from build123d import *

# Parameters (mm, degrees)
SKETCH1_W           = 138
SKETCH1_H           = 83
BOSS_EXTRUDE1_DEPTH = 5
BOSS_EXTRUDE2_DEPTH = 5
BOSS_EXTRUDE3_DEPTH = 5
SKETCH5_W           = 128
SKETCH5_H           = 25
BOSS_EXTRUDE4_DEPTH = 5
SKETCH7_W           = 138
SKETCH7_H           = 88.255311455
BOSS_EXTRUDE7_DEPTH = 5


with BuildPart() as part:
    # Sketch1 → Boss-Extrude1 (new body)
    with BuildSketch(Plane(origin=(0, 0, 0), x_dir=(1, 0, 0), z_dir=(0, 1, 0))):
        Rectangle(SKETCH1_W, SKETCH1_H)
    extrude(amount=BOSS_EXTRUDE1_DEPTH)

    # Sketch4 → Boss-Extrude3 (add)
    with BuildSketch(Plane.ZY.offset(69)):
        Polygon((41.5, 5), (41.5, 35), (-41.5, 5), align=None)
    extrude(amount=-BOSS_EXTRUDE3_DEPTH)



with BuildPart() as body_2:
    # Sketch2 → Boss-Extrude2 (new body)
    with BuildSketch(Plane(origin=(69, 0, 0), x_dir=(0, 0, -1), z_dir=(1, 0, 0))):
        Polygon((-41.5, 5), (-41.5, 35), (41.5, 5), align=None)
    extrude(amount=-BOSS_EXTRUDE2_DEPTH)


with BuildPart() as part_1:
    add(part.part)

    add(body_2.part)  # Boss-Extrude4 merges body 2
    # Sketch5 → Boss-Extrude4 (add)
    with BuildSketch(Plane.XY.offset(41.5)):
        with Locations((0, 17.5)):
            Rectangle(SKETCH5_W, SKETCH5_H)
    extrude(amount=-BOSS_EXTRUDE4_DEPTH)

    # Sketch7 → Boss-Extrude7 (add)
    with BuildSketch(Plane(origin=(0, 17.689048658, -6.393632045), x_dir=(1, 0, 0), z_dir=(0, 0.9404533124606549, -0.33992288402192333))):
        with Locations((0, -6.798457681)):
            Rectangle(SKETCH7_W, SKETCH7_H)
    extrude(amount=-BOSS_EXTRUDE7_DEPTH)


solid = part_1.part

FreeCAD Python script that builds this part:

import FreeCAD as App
import Part
import Sketcher

V = App.Vector

doc = App.newDocument("Part")
params = doc.addObject("Spreadsheet::Sheet", "Params")
for row, (alias, value) in enumerate([
    ("sketch1_width", "138 mm"),
    ("sketch1_height", "83 mm"),
    ("pad1_length", "5 mm"),
    ("sketch2_width", "30 mm"),
    ("sketch2_height", "83 mm"),
    ("pad2_length", "5 mm"),
    ("sketch3_width", "30 mm"),
    ("sketch3_height", "83 mm"),
    ("pad3_length", "5 mm"),
    ("sketch4_width", "128 mm"),
    ("sketch4_height", "25 mm"),
    ("pad4_length", "5 mm"),
    ("sketch5_width", "138 mm"),
    ("pad5_length", "5 mm"),
], start=1):
    params.set(f"A{row}", alias)
    params.set(f"B{row}", "=" + value)
    params.setAlias(f"B{row}", alias)

body = doc.addObject("PartDesign::Body", "Body")

sketch1 = body.newObject("Sketcher::SketchObject", "Sketch")
sketch1.AttachmentSupport = (doc.getObject("XZ_Plane"), [""])
sketch1.MapMode = "FlatFace"
sketch1.addGeometry([
    Part.LineSegment(V(-69, -41.5, 0), V(-69, 41.5, 0)),
    Part.LineSegment(V(-69, 41.5, 0), V(69, 41.5, 0)),
    Part.LineSegment(V(69, 41.5, 0), V(69, -41.5, 0)),
    Part.LineSegment(V(69, -41.5, 0), V(-69, -41.5, 0)),
], False)
sketch1.addConstraint([
    Sketcher.Constraint("Coincident", 0, 2, 1, 1),
    Sketcher.Constraint("Coincident", 1, 2, 2, 1),
    Sketcher.Constraint("Coincident", 2, 2, 3, 1),
    Sketcher.Constraint("Coincident", 3, 2, 0, 1),
    Sketcher.Constraint("Vertical", 0),
    Sketcher.Constraint("Horizontal", 1),
    Sketcher.Constraint("Vertical", 2),
    Sketcher.Constraint("Horizontal", 3),
    Sketcher.Constraint("Symmetric", 0, 2, 2, 2, -1, 1),
    Sketcher.Constraint("DistanceX", 1, 1, 1, 2, 138.0),
    Sketcher.Constraint("DistanceY", 0, 1, 0, 2, 83.0),
])
sketch1.setExpression("Constraints[9]", "Params.sketch1_width")
sketch1.setExpression("Constraints[10]", "Params.sketch1_height")
pad1 = body.newObject("PartDesign::Pad", "Pad")
pad1.Profile = sketch1
pad1.setExpression("Length", "Params.pad1_length")
pad1.Reversed = True

sketch2 = body.newObject("Sketcher::SketchObject", "Sketch001")
sketch2.AttachmentSupport = (doc.getObject("YZ_Plane"), [""])
sketch2.MapMode = "FlatFace"
sketch2.AttachmentOffset = App.Placement(V(0, 0, -69), App.Rotation())
sketch2.addGeometry([
    Part.LineSegment(V(5, 41.5, 0), V(35, 41.5, 0)),
    Part.LineSegment(V(35, 41.5, 0), V(5, -41.5, 0)),
    Part.LineSegment(V(5, -41.5, 0), V(5, 41.5, 0)),
], False)
sketch2.addConstraint([
    Sketcher.Constraint("Coincident", 0, 2, 1, 1),
    Sketcher.Constraint("Coincident", 1, 2, 2, 1),
    Sketcher.Constraint("Coincident", 2, 2, 0, 1),
    Sketcher.Constraint("Horizontal", 0),
    Sketcher.Constraint("Vertical", 2),
    Sketcher.Constraint("DistanceX", 0, 1, 0, 2, 30.0),
    Sketcher.Constraint("DistanceY", 2, 1, 2, 2, 83.0),
    Sketcher.Constraint("DistanceX", -1, 1, 0, 2, 35.0),
    Sketcher.Constraint("DistanceY", -1, 1, 0, 2, 41.5),
])
sketch2.setExpression("Constraints[5]", "Params.sketch2_width")
sketch2.setExpression("Constraints[6]", "Params.sketch2_height")
pad2 = body.newObject("PartDesign::Pad", "Pad001")
pad2.Profile = sketch2
pad2.setExpression("Length", "Params.pad2_length")
body2 = doc.addObject("PartDesign::Body", "Body001")

sketch3 = body2.newObject("Sketcher::SketchObject", "Sketch002")
sketch3.AttachmentSupport = (doc.getObject("YZ_Plane001"), [""])
sketch3.MapMode = "FlatFace"
sketch3.AttachmentOffset = App.Placement(V(0, 0, 69), App.Rotation())
sketch3.addGeometry([
    Part.LineSegment(V(35, 41.5, 0), V(5, 41.5, 0)),
    Part.LineSegment(V(5, 41.5, 0), V(5, -41.5, 0)),
    Part.LineSegment(V(5, -41.5, 0), V(35, 41.5, 0)),
], False)
sketch3.addConstraint([
    Sketcher.Constraint("Coincident", 0, 2, 1, 1),
    Sketcher.Constraint("Coincident", 1, 2, 2, 1),
    Sketcher.Constraint("Coincident", 2, 2, 0, 1),
    Sketcher.Constraint("Horizontal", 0),
    Sketcher.Constraint("Vertical", 1),
    Sketcher.Constraint("DistanceX", 0, 2, 0, 1, 30.0),
    Sketcher.Constraint("DistanceY", 1, 2, 1, 1, 83.0),
    Sketcher.Constraint("DistanceX", -1, 1, 0, 2, 5.0),
    Sketcher.Constraint("DistanceY", -1, 1, 0, 2, 41.5),
])
sketch3.setExpression("Constraints[5]", "Params.sketch3_width")
sketch3.setExpression("Constraints[6]", "Params.sketch3_height")
pad3 = body2.newObject("PartDesign::Pad", "Pad002")
pad3.Profile = sketch3
pad3.setExpression("Length", "Params.pad3_length")
pad3.Reversed = True
doc.recompute()

boolean = body.newObject("PartDesign::Boolean", "Boolean")
boolean.Type = "Fuse"
boolean.addObjects([body2])

sketch4 = body.newObject("Sketcher::SketchObject", "Sketch003")
sketch4.AttachmentSupport = (doc.getObject("XY_Plane"), [""])
sketch4.MapMode = "FlatFace"
sketch4.AttachmentOffset = App.Placement(V(0, 0, 41.5), App.Rotation())
sketch4.addGeometry([
    Part.LineSegment(V(-64, 30, 0), V(-64, 5, 0)),
    Part.LineSegment(V(-64, 5, 0), V(64, 5, 0)),
    Part.LineSegment(V(64, 5, 0), V(64, 30, 0)),
    Part.LineSegment(V(64, 30, 0), V(-64, 30, 0)),
], False)
sketch4.addConstraint([
    Sketcher.Constraint("Coincident", 0, 2, 1, 1),
    Sketcher.Constraint("Coincident", 1, 2, 2, 1),
    Sketcher.Constraint("Coincident", 2, 2, 3, 1),
    Sketcher.Constraint("Coincident", 3, 2, 0, 1),
    Sketcher.Constraint("Vertical", 0),
    Sketcher.Constraint("Horizontal", 1),
    Sketcher.Constraint("Vertical", 2),
    Sketcher.Constraint("Horizontal", 3),
    Sketcher.Constraint("DistanceX", 1, 1, 1, 2, 128.0),
    Sketcher.Constraint("DistanceY", 0, 2, 0, 1, 25.0),
    Sketcher.Constraint("DistanceX", 0, 2, -1, 1, 64.0),
    Sketcher.Constraint("DistanceY", -1, 1, 0, 2, 5.0),
])
sketch4.setExpression("Constraints[8]", "Params.sketch4_width")
sketch4.setExpression("Constraints[9]", "Params.sketch4_height")
pad4 = body.newObject("PartDesign::Pad", "Pad003")
pad4.Profile = sketch4
pad4.setExpression("Length", "Params.pad4_length")
pad4.Reversed = True

sketch5 = body.newObject("Sketcher::SketchObject", "Sketch004")
sketch5.Placement = App.Placement(V(0, 17.689049, -6.393632), App.Rotation(V(1, 0, 0), V(0, -0.339922884, -0.940453312), V(0, 0.940453312, -0.339922884), "ZXY"))
sketch5.addGeometry([
    Part.LineSegment(V(-69, 37.329198, 0), V(-69, -50.926113, 0)),
    Part.LineSegment(V(-69, -50.926113, 0), V(69, -50.926113, 0)),
    Part.LineSegment(V(69, -50.926113, 0), V(69, 37.329198, 0)),
    Part.LineSegment(V(69, 37.329198, 0), V(-69, 37.329198, 0)),
], False)
sketch5.addConstraint([
    Sketcher.Constraint("Coincident", 0, 2, 1, 1),
    Sketcher.Constraint("Coincident", 1, 2, 2, 1),
    Sketcher.Constraint("Coincident", 2, 2, 3, 1),
    Sketcher.Constraint("Coincident", 3, 2, 0, 1),
    Sketcher.Constraint("Vertical", 0),
    Sketcher.Constraint("Horizontal", 1),
    Sketcher.Constraint("Vertical", 2),
    Sketcher.Constraint("Horizontal", 3),
    Sketcher.Constraint("DistanceX", 1, 1, 1, 2, 138.0),
    Sketcher.Constraint("DistanceX", 0, 2, -1, 1, 69.0),
    Sketcher.Constraint("DistanceY", 0, 2, 0, 1, 88.255311),
    Sketcher.Constraint("DistanceY", -1, 1, 2, 2, 37.329198),
])
sketch5.setExpression("Constraints[8]", "Params.sketch5_width")
pad5 = body.newObject("PartDesign::Pad", "Pad004")
pad5.Profile = sketch5
pad5.setExpression("Length", "Params.pad5_length")
pad5.Reversed = True

doc.recompute()
